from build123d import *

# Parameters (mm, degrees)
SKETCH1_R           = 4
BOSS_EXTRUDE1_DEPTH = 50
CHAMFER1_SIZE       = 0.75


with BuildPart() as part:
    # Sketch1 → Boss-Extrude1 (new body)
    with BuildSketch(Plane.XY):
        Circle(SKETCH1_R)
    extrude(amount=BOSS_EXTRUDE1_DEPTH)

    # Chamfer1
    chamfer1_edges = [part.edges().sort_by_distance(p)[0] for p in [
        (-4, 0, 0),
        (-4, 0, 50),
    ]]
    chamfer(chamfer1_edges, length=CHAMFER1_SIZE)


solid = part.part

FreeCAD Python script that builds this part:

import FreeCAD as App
import Part
import Sketcher
Q = App.Units.Quantity


def edges_at(feature, points):
    """Names of the edges that pass closest to the given points."""
    edges = feature.Shape.Edges
    near = lambda p: min(range(len(edges)), key=lambda i: edges[i].distToShape(Part.Vertex(*p))[0])
    return sorted({f"Edge{near(p) + 1}" for p in points})

doc = App.newDocument("Part")
body = doc.addObject("PartDesign::Body", "Body")

sketch1 = body.newObject("Sketcher::SketchObject", "Sketch")
sketch1.AttachmentSupport = (doc.getObject("XY_Plane"), [""])
sketch1.MapMode = "FlatFace"
sketch1.addGeometry(Part.Circle(App.Vector(0, 0, 0), App.Vector(0, 0, 1), 4), False)
sketch1.addConstraint(Sketcher.Constraint("Coincident", 0, 3, -1, 1))
sketch1.addConstraint(Sketcher.Constraint("Diameter", 0, Q("8 mm")))
pad1 = body.newObject("PartDesign::Pad", "Pad")
pad1.Profile = sketch1
pad1.Length = 50
doc.recompute()

chamfer = body.newObject("PartDesign::Chamfer", "Chamfer")
chamfer.Base = (pad1, edges_at(pad1, [(-4, 0, 0), (-4, 0, 50)]))
chamfer.Size = 0.75

doc.recompute()
